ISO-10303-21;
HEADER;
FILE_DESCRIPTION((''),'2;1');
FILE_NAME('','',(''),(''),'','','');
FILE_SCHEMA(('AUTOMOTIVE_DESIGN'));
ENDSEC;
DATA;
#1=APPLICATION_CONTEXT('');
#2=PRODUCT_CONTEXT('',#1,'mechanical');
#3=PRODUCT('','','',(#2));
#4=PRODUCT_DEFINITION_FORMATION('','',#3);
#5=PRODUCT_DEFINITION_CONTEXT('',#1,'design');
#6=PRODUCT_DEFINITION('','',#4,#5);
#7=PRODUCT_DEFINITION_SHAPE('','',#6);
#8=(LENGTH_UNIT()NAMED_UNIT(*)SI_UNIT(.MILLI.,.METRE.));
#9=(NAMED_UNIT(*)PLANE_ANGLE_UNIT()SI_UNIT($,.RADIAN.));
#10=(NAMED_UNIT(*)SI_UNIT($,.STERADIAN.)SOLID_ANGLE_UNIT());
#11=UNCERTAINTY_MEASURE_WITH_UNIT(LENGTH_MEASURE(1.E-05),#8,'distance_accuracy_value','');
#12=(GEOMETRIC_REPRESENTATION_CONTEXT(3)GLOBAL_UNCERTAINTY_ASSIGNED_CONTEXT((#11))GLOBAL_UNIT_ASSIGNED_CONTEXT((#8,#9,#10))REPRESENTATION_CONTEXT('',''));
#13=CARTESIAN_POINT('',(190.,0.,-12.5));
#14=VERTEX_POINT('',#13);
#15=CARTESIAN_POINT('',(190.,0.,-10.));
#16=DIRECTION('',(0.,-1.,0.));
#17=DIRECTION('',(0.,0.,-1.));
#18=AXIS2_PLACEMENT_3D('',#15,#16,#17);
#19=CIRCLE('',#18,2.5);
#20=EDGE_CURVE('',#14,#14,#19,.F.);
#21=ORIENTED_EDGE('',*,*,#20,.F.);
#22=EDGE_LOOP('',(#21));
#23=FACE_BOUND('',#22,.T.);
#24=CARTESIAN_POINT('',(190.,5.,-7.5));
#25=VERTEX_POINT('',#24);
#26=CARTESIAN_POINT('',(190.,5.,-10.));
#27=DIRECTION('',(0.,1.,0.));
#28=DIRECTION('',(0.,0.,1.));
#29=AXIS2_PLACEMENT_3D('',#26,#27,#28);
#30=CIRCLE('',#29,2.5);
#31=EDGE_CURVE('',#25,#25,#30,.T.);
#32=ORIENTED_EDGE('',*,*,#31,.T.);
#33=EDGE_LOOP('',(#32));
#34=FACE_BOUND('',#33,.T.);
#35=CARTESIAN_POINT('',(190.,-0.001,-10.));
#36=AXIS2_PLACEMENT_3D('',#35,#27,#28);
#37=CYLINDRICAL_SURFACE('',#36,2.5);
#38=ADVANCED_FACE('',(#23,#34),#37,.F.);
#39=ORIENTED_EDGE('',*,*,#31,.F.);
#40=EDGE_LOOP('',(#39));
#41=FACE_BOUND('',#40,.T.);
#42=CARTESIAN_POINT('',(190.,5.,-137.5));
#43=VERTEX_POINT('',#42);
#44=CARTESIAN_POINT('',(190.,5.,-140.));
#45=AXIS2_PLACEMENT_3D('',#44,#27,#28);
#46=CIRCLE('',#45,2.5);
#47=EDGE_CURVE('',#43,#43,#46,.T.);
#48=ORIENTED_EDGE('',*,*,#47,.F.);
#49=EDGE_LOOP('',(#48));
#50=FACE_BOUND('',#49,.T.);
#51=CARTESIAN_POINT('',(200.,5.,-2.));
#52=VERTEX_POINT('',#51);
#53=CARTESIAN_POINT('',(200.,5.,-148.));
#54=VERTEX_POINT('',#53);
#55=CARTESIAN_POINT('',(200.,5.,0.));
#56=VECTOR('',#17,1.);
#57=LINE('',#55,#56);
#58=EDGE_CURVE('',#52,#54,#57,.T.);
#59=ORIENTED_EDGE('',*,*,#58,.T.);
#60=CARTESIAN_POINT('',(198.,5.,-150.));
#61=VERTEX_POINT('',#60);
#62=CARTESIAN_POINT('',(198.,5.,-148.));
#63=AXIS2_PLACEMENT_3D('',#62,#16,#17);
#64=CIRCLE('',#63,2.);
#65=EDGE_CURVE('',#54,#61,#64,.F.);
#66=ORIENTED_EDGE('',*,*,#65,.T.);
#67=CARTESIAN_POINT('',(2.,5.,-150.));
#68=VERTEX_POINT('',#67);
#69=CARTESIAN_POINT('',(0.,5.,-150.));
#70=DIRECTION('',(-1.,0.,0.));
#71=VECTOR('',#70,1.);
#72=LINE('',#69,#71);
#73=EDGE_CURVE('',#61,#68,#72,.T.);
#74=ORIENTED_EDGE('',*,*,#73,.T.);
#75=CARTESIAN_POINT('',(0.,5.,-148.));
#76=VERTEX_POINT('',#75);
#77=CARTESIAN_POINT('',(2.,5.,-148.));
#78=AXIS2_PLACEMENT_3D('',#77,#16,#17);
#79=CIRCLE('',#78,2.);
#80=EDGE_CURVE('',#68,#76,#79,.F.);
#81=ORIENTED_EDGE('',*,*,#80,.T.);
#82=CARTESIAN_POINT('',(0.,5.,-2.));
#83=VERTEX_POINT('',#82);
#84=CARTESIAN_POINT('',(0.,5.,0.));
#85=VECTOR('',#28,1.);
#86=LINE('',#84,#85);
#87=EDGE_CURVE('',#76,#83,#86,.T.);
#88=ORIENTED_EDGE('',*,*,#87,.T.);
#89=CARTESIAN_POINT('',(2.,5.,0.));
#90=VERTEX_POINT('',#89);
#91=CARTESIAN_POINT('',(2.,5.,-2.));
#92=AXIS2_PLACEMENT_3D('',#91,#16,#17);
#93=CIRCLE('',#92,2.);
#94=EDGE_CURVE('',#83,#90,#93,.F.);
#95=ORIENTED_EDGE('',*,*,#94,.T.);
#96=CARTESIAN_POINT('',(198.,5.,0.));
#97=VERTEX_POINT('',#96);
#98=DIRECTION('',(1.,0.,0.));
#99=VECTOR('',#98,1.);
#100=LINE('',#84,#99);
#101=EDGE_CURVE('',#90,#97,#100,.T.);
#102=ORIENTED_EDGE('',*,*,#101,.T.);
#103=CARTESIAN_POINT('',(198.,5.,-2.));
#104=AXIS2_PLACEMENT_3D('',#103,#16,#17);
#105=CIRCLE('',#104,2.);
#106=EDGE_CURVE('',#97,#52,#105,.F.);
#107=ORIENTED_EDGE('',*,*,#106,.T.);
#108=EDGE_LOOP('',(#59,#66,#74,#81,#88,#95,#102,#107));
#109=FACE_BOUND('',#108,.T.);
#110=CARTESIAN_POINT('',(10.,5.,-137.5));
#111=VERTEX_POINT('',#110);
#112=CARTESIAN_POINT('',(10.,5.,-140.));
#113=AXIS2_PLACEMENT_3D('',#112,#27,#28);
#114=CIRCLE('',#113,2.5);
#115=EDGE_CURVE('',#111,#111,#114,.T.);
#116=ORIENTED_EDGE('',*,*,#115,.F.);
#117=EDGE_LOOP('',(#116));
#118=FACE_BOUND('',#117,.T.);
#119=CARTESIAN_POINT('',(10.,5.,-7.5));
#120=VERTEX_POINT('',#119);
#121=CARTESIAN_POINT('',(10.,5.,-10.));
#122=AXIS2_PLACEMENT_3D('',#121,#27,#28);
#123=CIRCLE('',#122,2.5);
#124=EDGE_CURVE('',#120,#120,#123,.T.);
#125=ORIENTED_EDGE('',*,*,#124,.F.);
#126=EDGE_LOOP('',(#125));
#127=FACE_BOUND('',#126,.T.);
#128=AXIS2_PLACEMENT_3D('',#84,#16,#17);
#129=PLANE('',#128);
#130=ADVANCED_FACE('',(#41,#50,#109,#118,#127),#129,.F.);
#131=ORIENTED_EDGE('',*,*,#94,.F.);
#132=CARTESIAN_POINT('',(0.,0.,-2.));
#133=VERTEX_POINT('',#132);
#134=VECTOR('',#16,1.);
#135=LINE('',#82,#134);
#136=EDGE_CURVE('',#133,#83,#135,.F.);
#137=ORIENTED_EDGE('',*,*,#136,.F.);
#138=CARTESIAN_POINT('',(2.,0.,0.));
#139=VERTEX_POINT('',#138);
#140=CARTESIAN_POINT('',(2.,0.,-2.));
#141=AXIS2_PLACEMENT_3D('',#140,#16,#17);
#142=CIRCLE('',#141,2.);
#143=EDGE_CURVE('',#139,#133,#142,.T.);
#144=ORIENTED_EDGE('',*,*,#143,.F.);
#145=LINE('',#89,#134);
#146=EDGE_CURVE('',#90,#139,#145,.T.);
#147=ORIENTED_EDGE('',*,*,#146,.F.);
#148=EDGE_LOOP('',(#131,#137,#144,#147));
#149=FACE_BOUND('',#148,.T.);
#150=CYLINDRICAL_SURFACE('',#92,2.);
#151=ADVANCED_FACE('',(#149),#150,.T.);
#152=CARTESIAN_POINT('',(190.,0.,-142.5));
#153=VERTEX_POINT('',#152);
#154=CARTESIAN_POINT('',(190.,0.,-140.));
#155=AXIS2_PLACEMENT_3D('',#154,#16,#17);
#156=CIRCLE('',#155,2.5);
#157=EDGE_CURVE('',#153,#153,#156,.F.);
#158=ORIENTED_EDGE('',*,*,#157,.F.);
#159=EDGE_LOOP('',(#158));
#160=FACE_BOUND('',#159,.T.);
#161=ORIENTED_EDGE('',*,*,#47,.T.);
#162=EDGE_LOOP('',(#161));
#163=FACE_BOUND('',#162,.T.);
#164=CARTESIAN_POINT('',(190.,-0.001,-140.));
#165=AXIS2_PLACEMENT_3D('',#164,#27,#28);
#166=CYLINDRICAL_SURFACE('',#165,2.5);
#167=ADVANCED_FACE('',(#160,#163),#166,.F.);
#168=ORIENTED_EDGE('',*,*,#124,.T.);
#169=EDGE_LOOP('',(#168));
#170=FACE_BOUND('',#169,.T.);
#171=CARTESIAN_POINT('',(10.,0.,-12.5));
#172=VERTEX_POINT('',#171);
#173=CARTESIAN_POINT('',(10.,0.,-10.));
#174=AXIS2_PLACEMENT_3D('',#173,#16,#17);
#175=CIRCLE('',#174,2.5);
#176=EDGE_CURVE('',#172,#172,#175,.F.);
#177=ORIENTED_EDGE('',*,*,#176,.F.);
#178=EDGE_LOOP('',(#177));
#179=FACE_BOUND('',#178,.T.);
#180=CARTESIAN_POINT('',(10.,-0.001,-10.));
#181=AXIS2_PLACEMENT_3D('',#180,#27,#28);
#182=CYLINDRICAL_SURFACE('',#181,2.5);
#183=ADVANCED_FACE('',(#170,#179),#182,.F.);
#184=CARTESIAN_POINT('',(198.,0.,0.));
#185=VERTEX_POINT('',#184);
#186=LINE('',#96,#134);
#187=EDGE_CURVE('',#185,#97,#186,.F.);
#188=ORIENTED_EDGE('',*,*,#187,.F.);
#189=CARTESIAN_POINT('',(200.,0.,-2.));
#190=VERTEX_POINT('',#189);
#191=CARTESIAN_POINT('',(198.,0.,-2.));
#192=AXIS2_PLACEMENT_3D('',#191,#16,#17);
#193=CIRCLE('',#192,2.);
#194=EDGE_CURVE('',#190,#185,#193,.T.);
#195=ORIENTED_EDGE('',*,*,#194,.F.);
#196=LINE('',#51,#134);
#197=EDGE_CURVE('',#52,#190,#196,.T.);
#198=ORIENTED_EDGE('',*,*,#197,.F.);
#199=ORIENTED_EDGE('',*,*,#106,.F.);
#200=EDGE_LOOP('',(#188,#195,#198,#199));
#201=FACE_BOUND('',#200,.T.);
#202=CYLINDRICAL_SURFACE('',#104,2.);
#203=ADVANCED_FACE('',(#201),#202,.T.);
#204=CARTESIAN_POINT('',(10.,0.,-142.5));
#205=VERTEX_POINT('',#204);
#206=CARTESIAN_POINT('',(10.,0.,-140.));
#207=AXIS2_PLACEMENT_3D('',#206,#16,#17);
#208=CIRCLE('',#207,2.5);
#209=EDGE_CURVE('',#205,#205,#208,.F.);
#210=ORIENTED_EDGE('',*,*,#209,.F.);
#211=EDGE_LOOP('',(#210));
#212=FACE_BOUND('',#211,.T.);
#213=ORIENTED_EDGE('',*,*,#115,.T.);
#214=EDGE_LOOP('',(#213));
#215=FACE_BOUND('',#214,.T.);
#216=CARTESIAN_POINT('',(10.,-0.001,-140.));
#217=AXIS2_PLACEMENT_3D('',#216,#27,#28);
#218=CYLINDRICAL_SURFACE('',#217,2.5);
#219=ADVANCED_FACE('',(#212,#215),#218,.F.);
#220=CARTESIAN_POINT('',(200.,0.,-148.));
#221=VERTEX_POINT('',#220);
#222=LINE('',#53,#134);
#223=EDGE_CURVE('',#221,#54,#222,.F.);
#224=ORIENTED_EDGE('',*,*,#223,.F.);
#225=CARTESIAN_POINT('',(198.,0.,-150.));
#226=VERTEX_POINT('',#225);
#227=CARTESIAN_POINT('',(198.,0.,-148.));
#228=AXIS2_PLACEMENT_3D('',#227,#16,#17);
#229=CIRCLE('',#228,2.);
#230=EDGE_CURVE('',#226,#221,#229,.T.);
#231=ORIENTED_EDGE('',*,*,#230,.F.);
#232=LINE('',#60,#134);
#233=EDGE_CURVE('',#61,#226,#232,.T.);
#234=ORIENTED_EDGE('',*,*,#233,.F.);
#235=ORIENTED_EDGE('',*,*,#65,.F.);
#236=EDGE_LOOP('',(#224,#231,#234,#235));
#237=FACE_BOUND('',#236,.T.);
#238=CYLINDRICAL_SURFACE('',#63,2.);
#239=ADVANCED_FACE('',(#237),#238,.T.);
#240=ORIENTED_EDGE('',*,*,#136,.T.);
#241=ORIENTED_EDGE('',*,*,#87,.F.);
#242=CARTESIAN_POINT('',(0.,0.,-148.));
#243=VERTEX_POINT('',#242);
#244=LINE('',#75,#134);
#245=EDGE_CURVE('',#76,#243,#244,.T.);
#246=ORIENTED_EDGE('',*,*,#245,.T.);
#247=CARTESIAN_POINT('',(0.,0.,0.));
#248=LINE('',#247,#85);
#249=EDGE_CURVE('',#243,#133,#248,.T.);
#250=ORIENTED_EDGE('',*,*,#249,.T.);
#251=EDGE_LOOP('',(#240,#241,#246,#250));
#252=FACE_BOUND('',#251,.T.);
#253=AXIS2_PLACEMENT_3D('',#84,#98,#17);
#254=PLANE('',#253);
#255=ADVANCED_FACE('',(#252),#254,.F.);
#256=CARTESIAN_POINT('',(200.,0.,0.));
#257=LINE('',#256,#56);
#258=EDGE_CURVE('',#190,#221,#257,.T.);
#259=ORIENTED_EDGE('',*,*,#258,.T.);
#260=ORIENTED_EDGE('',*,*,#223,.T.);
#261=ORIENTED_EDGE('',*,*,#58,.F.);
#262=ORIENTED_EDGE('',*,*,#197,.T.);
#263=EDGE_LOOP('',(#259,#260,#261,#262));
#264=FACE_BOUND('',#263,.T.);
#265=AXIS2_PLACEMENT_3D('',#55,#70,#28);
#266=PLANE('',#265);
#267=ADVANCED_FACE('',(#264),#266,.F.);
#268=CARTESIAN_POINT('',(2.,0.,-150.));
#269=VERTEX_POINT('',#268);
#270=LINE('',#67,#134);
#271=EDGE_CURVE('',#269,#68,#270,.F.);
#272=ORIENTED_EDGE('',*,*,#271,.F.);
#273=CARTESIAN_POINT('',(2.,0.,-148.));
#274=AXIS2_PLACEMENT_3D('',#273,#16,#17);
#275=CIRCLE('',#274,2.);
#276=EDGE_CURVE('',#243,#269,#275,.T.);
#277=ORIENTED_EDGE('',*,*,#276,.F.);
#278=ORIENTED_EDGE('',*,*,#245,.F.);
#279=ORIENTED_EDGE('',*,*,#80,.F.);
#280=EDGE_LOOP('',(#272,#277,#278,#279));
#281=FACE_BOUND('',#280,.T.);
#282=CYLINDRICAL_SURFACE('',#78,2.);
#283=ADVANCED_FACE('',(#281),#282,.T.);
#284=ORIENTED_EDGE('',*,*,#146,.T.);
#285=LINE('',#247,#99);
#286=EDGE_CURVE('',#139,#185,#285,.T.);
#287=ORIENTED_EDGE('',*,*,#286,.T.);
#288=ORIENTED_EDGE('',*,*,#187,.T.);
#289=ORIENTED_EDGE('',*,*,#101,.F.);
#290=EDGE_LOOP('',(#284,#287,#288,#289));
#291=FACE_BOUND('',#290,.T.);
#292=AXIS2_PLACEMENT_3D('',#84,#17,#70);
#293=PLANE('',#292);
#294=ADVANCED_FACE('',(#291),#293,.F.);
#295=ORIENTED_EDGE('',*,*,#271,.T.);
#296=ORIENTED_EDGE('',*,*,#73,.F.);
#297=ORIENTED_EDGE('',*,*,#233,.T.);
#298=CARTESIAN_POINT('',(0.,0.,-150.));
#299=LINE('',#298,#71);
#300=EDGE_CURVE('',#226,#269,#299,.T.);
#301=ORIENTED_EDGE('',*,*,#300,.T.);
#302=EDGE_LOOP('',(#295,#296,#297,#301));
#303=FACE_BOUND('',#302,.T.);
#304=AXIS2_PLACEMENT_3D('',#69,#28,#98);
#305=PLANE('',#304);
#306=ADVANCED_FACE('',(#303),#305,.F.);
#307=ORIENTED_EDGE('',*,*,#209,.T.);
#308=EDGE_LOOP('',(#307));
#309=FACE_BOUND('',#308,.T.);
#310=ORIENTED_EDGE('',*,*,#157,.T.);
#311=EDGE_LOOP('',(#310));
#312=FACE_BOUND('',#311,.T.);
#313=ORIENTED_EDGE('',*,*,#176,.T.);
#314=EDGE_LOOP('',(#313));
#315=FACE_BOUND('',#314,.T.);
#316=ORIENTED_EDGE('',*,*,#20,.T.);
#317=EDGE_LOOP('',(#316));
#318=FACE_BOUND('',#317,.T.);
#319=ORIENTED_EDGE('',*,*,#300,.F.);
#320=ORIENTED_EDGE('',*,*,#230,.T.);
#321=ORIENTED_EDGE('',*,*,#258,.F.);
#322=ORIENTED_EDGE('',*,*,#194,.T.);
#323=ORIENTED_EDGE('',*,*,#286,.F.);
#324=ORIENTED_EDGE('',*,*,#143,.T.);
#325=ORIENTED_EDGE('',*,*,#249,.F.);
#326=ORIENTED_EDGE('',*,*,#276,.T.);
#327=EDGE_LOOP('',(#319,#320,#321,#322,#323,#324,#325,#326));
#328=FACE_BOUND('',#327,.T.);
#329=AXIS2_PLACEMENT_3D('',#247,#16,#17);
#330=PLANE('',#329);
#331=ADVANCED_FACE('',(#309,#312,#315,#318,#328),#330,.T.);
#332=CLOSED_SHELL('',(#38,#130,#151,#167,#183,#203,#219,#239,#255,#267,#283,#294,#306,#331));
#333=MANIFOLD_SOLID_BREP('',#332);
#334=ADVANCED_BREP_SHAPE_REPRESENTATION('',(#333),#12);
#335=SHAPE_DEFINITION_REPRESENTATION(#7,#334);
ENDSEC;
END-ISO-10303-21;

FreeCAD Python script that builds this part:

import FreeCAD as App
import Part
import Sketcher


def edges_at(feature, points):
    """Names of the edges that pass closest to the given points."""
    edges = feature.Shape.Edges
    near = lambda p: min(range(len(edges)), key=lambda i: edges[i].distToShape(Part.Vertex(*p))[0])
    return sorted({f"Edge{near(p) + 1}" for p in points})


def add_polygon(sketch, points):
    """Adds a closed chain of lines whose ends are joined by coincident constraints."""
    first, n = sketch.GeometryCount, len(points)
    for a, b in zip(points, points[1:] + points[:1]):
        sketch.addGeometry(Part.LineSegment(App.Vector(*a, 0), App.Vector(*b, 0)), False)
    for i in range(n):
        sketch.addConstraint(Sketcher.Constraint("Coincident", first + i, 2, first + (i + 1) % n, 1))

doc = App.newDocument("Part")
params = doc.addObject("Spreadsheet::Sheet", "Params")
for row, (alias, value) in enumerate([
    ("sketch1_width", "200 mm"),
    ("sketch1_height", "150 mm"),
    ("pad1_length", "5 mm"),
    ("fillet_radius", "2 mm"),
    ("sketch2_diameter", "5 mm"),
    ("sketch3_diameter", "5 mm"),
    ("sketch4_diameter", "5 mm"),
    ("sketch5_diameter", "5 mm"),
], start=1):
    params.set(f"A{row}", alias)
    params.set(f"B{row}", "=" + value)
    params.setAlias(f"B{row}", alias)

body = doc.addObject("PartDesign::Body", "Body")

sketch1 = body.newObject("Sketcher::SketchObject", "Sketch")
sketch1.AttachmentSupport = (doc.getObject("XZ_Plane"), [""])
sketch1.MapMode = "FlatFace"
add_polygon(sketch1, [(0, -150), (0, 0), (200, 0), (200, -150)])
sketch1.addConstraint([
    Sketcher.Constraint("Vertical", 0),
    Sketcher.Constraint("Horizontal", 1),
    Sketcher.Constraint("Vertical", 2),
    Sketcher.Constraint("Horizontal", 3),
    Sketcher.Constraint("Coincident", 0, 2, -1, 1),
    Sketcher.Constraint("DistanceX", 1, 1, 1, 2, 200.0),
    Sketcher.Constraint("DistanceY", 0, 1, 0, 2, 150.0),
])
sketch1.setExpression("Constraints[9]", "Params.sketch1_width")
sketch1.setExpression("Constraints[10]", "Params.sketch1_height")
pad1 = body.newObject("PartDesign::Pad", "Pad")
pad1.Profile = sketch1
pad1.setExpression("Length", "Params.pad1_length")
pad1.Reversed = True
doc.recompute()

fillet = body.newObject("PartDesign::Fillet", "Fillet")
fillet.Base = (pad1, edges_at(pad1, [
    (0, 2.5, -150),
    (200, 2.5, -150),
    (200, 2.5, 0),
    (0, 2.5, 0),
]))
fillet.setExpression("Radius", "Params.fillet_radius")

sketch2 = body.newObject("Sketcher::SketchObject", "Sketch001")
sketch2.AttachmentSupport = (doc.getObject("XZ_Plane"), [""])
sketch2.MapMode = "FlatFace"
sketch2.AttachmentOffset = App.Placement(App.Vector(0, 0, -5), App.Rotation())
sketch2.addGeometry(Part.Circle(App.Vector(10, -140, 0), App.Vector(0, 0, 1), 2.5), False)
sketch2.addConstraint([
    Sketcher.Constraint("Diameter", 0, 5.0),
    Sketcher.Constraint("DistanceX", -1, 1, 0, 3, 10.0),
    Sketcher.Constraint("DistanceY", 0, 3, -1, 1, 140.0),
])
sketch2.setExpression("Constraints[0]", "Params.sketch2_diameter")
pocket1 = body.newObject("PartDesign::Pocket", "Pocket")
pocket1.Profile = sketch2
pocket1.Type = "UpToFirst"
pocket1.Reversed = True

sketch3 = body.newObject("Sketcher::SketchObject", "Sketch002")
sketch3.AttachmentSupport = (doc.getObject("XZ_Plane"), [""])
sketch3.MapMode = "FlatFace"
sketch3.AttachmentOffset = App.Placement(App.Vector(0, 0, -5), App.Rotation())
sketch3.addGeometry(Part.Circle(App.Vector(190, -140, 0), App.Vector(0, 0, 1), 2.5), False)
sketch3.addConstraint([
    Sketcher.Constraint("Diameter", 0, 5.0),
    Sketcher.Constraint("DistanceX", -1, 1, 0, 3, 190.0),
    Sketcher.Constraint("DistanceY", 0, 3, -1, 1, 140.0),
])
sketch3.setExpression("Constraints[0]", "Params.sketch3_diameter")
pocket2 = body.newObject("PartDesign::Pocket", "Pocket001")
pocket2.Profile = sketch3
pocket2.Type = "UpToFirst"
pocket2.Reversed = True

sketch4 = body.newObject("Sketcher::SketchObject", "Sketch003")
sketch4.AttachmentSupport = (doc.getObject("XZ_Plane"), [""])
sketch4.MapMode = "FlatFace"
sketch4.AttachmentOffset = App.Placement(App.Vector(0, 0, -5), App.Rotation())
sketch4.addGeometry(Part.Circle(App.Vector(190, -10, 0), App.Vector(0, 0, 1), 2.5), False)
sketch4.addConstraint([
    Sketcher.Constraint("Diameter", 0, 5.0),
    Sketcher.Constraint("DistanceX", -1, 1, 0, 3, 190.0),
    Sketcher.Constraint("DistanceY", 0, 3, -1, 1, 10.0),
])
sketch4.setExpression("Constraints[0]", "Params.sketch4_diameter")
pocket3 = body.newObject("PartDesign::Pocket", "Pocket002")
pocket3.Profile = sketch4
pocket3.Type = "UpToFirst"
pocket3.Reversed = True

sketch5 = body.newObject("Sketcher::SketchObject", "Sketch004")
sketch5.AttachmentSupport = (doc.getObject("XZ_Plane"), [""])
sketch5.MapMode = "FlatFace"
sketch5.AttachmentOffset = App.Placement(App.Vector(0, 0, -5), App.Rotation())
sketch5.addGeometry(Part.Circle(App.Vector(10, -10, 0), App.Vector(0, 0, 1), 2.5), False)
sketch5.addConstraint([
    Sketcher.Constraint("Diameter", 0, 5.0),
    Sketcher.Constraint("DistanceX", -1, 1, 0, 3, 10.0),
    Sketcher.Constraint("DistanceY", 0, 3, -1, 1, 10.0),
])
sketch5.setExpression("Constraints[0]", "Params.sketch5_diameter")
pocket4 = body.newObject("PartDesign::Pocket", "Pocket003")
pocket4.Profile = sketch5
pocket4.Type = "UpToFirst"
pocket4.Reversed = True

doc.recompute()
